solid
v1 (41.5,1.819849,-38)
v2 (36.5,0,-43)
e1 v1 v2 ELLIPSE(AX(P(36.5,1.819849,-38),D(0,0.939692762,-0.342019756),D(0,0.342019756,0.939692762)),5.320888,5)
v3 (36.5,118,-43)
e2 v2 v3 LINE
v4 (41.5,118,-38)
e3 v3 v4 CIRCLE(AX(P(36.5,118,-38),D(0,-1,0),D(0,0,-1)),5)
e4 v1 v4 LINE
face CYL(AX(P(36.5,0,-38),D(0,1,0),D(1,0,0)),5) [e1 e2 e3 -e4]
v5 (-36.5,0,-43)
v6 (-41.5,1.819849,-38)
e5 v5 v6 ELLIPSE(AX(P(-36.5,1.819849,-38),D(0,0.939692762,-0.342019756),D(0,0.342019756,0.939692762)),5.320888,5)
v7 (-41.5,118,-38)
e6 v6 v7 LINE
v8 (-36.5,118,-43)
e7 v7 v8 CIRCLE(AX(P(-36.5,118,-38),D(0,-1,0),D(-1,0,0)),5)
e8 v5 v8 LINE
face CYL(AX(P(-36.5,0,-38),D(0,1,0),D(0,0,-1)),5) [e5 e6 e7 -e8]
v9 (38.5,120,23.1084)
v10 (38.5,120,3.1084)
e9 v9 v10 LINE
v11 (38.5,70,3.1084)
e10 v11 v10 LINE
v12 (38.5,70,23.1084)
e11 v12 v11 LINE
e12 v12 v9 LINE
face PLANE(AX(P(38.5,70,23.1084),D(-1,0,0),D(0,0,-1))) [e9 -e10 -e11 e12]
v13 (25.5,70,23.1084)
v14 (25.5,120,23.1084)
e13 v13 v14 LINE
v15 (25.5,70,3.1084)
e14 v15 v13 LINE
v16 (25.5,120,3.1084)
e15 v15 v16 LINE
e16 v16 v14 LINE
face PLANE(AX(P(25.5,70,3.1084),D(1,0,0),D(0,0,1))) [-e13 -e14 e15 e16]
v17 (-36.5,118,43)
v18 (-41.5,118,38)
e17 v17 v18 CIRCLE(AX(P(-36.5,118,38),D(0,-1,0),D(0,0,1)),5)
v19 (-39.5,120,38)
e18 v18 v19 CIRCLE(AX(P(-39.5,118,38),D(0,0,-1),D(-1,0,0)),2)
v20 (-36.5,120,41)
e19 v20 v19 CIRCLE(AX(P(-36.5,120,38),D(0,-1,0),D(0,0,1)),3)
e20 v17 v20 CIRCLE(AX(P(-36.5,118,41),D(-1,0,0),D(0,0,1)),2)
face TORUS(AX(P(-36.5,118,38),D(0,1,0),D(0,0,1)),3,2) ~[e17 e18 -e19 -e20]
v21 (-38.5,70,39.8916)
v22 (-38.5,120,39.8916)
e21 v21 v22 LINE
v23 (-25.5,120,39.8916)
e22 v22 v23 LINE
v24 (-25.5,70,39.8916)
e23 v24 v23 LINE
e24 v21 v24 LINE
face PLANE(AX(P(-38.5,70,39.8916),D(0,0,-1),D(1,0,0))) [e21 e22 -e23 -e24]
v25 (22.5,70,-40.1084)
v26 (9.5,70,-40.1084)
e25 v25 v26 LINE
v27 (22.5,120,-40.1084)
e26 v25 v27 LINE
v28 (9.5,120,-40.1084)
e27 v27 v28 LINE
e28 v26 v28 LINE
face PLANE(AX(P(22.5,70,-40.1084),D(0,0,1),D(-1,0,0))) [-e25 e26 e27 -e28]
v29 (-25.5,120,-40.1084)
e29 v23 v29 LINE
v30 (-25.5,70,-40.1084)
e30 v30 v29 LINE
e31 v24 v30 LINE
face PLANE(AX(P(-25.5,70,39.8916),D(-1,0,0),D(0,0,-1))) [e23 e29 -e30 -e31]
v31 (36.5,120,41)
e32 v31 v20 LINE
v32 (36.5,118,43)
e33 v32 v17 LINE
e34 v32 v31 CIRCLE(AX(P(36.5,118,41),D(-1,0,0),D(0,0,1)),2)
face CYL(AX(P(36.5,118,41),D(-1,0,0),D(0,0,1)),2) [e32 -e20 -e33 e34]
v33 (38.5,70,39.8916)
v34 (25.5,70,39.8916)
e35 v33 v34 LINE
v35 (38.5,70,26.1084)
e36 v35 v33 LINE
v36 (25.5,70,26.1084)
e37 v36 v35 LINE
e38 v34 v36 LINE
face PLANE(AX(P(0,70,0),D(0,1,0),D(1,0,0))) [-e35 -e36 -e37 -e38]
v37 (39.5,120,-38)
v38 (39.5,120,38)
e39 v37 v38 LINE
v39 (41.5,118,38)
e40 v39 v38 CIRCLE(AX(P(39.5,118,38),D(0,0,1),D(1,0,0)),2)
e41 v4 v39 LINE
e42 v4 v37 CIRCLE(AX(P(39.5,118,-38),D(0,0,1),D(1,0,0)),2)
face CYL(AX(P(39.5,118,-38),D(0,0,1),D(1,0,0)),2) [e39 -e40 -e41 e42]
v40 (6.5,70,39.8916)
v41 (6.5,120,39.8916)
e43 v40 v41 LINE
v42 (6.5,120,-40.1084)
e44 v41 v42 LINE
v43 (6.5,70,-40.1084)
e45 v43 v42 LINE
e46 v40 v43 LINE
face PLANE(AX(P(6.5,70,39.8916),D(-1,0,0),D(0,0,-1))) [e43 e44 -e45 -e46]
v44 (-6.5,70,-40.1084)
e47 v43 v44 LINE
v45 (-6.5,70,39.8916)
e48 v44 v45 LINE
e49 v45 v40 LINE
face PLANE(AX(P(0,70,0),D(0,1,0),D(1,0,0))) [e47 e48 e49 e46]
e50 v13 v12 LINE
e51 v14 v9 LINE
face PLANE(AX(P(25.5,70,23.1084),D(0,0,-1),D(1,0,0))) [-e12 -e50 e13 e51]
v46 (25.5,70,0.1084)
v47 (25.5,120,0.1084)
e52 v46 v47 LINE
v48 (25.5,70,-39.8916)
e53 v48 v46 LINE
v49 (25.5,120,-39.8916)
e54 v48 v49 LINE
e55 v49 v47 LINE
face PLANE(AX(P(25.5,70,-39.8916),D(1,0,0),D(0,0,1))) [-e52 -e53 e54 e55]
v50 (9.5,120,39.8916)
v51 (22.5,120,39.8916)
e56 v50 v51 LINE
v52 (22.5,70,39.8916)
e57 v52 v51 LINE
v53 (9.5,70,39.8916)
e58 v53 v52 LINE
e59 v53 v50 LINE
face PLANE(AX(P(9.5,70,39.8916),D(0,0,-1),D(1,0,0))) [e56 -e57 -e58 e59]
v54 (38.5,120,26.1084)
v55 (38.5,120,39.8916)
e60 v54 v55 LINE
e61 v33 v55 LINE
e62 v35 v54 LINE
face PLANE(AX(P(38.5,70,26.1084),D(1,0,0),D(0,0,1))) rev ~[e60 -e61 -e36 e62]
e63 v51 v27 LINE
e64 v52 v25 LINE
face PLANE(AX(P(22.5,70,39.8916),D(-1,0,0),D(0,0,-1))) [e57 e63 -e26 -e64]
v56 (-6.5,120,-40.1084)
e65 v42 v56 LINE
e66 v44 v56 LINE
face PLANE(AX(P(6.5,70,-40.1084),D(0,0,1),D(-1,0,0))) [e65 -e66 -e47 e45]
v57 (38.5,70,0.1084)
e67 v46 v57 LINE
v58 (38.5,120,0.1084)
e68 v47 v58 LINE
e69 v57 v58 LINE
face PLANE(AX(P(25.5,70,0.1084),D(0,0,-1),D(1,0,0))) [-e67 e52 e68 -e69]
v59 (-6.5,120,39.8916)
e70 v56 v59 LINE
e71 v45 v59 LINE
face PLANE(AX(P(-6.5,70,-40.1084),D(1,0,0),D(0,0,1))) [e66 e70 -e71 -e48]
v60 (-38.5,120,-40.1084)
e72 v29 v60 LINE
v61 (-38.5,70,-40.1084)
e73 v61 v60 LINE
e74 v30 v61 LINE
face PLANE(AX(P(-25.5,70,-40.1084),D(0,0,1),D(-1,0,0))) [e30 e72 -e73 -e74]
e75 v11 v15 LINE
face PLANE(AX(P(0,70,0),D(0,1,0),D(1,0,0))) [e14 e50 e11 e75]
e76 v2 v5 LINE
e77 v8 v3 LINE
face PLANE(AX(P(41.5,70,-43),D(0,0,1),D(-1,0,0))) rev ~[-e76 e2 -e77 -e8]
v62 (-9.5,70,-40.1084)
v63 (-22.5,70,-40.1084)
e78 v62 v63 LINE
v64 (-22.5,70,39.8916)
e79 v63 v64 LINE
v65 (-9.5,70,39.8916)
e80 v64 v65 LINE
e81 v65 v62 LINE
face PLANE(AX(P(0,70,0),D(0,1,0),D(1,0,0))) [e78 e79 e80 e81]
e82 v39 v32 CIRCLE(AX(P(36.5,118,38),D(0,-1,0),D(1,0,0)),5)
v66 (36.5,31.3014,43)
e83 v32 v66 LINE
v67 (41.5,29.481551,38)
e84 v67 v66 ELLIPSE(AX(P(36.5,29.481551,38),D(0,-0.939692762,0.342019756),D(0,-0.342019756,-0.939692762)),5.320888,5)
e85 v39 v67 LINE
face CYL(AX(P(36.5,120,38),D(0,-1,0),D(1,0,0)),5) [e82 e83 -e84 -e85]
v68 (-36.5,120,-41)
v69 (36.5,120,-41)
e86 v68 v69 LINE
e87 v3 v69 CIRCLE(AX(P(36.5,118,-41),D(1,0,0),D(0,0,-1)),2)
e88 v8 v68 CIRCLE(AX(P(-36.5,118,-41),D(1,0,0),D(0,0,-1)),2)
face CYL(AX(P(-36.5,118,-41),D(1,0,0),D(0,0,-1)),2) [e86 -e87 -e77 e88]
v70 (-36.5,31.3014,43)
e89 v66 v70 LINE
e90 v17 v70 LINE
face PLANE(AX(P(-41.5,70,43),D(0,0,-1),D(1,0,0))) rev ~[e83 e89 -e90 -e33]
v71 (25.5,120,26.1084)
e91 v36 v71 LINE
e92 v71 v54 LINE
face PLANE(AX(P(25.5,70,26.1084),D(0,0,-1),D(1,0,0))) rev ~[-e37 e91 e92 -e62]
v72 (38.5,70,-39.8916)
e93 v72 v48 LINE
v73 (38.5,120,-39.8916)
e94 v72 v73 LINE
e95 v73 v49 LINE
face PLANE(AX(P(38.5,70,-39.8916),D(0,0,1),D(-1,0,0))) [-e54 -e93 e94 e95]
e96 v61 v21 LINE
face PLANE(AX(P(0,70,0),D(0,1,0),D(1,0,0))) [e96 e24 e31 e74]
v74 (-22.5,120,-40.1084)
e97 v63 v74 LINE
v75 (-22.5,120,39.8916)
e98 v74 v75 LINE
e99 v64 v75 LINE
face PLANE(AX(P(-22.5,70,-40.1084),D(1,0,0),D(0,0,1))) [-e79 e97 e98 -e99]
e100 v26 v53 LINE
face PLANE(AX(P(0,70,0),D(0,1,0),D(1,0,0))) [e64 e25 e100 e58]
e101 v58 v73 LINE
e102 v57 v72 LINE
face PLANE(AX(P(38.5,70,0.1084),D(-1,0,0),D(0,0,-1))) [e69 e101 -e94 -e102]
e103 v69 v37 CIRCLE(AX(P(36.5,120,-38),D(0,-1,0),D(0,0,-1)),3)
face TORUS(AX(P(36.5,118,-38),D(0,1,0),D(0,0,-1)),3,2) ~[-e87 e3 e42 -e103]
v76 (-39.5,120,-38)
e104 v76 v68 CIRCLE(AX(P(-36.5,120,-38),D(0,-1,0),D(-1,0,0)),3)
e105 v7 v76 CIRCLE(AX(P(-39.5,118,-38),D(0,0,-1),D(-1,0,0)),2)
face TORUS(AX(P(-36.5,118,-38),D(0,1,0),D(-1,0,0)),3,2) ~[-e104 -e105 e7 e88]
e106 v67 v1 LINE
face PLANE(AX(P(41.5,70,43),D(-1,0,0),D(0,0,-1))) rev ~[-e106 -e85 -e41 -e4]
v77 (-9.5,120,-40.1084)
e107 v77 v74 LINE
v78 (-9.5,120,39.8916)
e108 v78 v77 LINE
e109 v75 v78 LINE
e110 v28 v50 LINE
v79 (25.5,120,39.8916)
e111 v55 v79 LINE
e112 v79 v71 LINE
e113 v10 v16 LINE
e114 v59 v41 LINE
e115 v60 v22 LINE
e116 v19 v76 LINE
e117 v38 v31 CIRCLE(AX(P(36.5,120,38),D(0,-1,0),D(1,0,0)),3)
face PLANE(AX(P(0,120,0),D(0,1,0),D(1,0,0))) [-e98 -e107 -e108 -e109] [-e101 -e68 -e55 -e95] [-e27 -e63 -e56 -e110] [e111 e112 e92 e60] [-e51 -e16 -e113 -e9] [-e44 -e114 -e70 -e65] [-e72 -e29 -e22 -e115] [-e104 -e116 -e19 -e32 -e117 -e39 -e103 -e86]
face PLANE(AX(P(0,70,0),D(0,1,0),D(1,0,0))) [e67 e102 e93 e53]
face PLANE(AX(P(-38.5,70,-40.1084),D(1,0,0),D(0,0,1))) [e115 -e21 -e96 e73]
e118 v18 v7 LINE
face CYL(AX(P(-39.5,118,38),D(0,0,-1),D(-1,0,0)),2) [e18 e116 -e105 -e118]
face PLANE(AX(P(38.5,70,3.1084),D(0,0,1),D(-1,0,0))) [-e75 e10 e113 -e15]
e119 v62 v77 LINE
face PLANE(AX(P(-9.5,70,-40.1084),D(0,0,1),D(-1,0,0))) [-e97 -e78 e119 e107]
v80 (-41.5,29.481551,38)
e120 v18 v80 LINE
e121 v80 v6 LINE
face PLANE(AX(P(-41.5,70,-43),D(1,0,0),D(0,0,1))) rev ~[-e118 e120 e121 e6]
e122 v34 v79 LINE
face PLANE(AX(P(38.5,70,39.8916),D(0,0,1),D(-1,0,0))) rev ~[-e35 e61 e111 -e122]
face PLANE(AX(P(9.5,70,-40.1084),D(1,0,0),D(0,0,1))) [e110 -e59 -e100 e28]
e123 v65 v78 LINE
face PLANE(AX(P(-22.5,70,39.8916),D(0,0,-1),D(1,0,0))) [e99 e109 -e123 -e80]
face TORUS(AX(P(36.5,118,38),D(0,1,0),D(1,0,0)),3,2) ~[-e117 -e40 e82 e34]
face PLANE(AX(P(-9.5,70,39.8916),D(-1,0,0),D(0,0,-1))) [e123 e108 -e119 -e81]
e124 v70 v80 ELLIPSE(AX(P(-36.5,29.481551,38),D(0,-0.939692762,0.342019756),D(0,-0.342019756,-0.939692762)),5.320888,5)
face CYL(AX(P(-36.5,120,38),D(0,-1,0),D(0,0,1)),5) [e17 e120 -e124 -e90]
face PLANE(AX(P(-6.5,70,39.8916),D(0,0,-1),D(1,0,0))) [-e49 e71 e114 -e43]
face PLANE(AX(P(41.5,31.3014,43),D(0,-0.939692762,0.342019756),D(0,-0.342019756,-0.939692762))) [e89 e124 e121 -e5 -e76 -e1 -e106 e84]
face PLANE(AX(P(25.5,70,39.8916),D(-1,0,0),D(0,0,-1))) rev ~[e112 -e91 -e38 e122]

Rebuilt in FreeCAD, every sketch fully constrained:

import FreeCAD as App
import Part
import Sketcher
from FreeCAD import Vector
Q = App.Units.Quantity


def edges_at(feature, points):
    """Names of the edges that pass closest to the given points."""
    edges = feature.Shape.Edges
    near = lambda p: min(range(len(edges)), key=lambda i: edges[i].distToShape(Part.Vertex(*p))[0])
    return sorted({f"Edge{near(p) + 1}" for p in points})

doc = App.newDocument("Part")
body = doc.addObject("PartDesign::Body", "Body")

# Sketch on XZ plane
sketch1 = body.newObject("Sketcher::SketchObject", "Sketch")
sketch1.AttachmentSupport = (doc.getObject("XZ_Plane"), [""])
sketch1.MapMode = "FlatFace"
sketch1.addGeometry(Part.LineSegment(Vector(41.5, 43, 0), Vector(41.5, -43, 0)), False)
sketch1.addGeometry(Part.LineSegment(Vector(41.5, -43, 0), Vector(-41.5, -43, 0)), False)
sketch1.addGeometry(Part.LineSegment(Vector(-41.5, -43, 0), Vector(-41.5, 43, 0)), False)
sketch1.addGeometry(Part.LineSegment(Vector(-41.5, 43, 0), Vector(41.5, 43, 0)), False)
sketch1.addConstraint(Sketcher.Constraint("Coincident", 0, 2, 1, 1))
sketch1.addConstraint(Sketcher.Constraint("Coincident", 1, 2, 2, 1))
sketch1.addConstraint(Sketcher.Constraint("Coincident", 2, 2, 3, 1))
sketch1.addConstraint(Sketcher.Constraint("Coincident", 3, 2, 0, 1))
sketch1.addConstraint(Sketcher.Constraint("Vertical", 0))
sketch1.addConstraint(Sketcher.Constraint("Horizontal", 1))
sketch1.addConstraint(Sketcher.Constraint("Vertical", 2))
sketch1.addConstraint(Sketcher.Constraint("Horizontal", 3))
sketch1.addConstraint(Sketcher.Constraint("Symmetric", 0, 2, 2, 2, -1, 1))
sketch1.addConstraint(Sketcher.Constraint("DistanceX", 1, 2, 1, 1, 83.0))
sketch1.addConstraint(Sketcher.Constraint("DistanceY", 0, 2, 0, 1, 86.0))
pad1 = body.newObject("PartDesign::Pad", "Pad")
pad1.Profile = sketch1
pad1.Length = 70
pad1.Reversed = True

# Sketch on XZ plane
sketch2 = body.newObject("Sketcher::SketchObject", "Sketch001")
sketch2.AttachmentSupport = (doc.getObject("XZ_Plane"), [""])
sketch2.MapMode = "FlatFace"
sketch2.AttachmentOffset = App.Placement(Vector(0, 0, -70), App.Rotation())
sketch2.addGeometry(Part.LineSegment(Vector(41.5, 43, 0), Vector(41.5, -43, 0)), False)
sketch2.addGeometry(Part.LineSegment(Vector(41.5, -43, 0), Vector(-41.5, -43, 0)), False)
sketch2.addGeometry(Part.LineSegment(Vector(-41.5, -43, 0), Vector(-41.5, 43, 0)), False)
sketch2.addGeometry(Part.LineSegment(Vector(-41.5, 43, 0), Vector(41.5, 43, 0)), False)
sketch2.addGeometry(Part.LineSegment(Vector(38.5, 26.1084, 0), Vector(38.5, 39.8916, 0)), False)
sketch2.addGeometry(Part.LineSegment(Vector(38.5, 39.8916, 0), Vector(25.5, 39.8916, 0)), False)
sketch2.addGeometry(Part.LineSegment(Vector(25.5, 39.8916, 0), Vector(25.5, 26.1084, 0)), False)
sketch2.addGeometry(Part.LineSegment(Vector(25.5, 26.1084, 0), Vector(38.5, 26.1084, 0)), False)
sketch2.addGeometry(Part.LineSegment(Vector(25.5, 3.1084, 0), Vector(38.5, 3.1084, 0)), False)
sketch2.addGeometry(Part.LineSegment(Vector(38.5, 3.1084, 0), Vector(38.5, 23.1084, 0)), False)
sketch2.addGeometry(Part.LineSegment(Vector(38.5, 23.1084, 0), Vector(25.5, 23.1084, 0)), False)
sketch2.addGeometry(Part.LineSegment(Vector(25.5, 23.1084, 0), Vector(25.5, 3.1084, 0)), False)
sketch2.addGeometry(Part.LineSegment(Vector(-25.5, 39.8916, 0), Vector(-38.5, 39.8916, 0)), False)
sketch2.addGeometry(Part.LineSegment(Vector(-38.5, 39.8916, 0), Vector(-38.5, -40.1084, 0)), False)
sketch2.addGeometry(Part.LineSegment(Vector(-38.5, -40.1084, 0), Vector(-25.5, -40.1084, 0)), False)
sketch2.addGeometry(Part.LineSegment(Vector(-25.5, -40.1084, 0), Vector(-25.5, 39.8916, 0)), False)
sketch2.addGeometry(Part.LineSegment(Vector(-22.5, 39.8916, 0), Vector(-22.5, -40.1084, 0)), False)
sketch2.addGeometry(Part.LineSegment(Vector(-22.5, -40.1084, 0), Vector(-9.5, -40.1084, 0)), False)
sketch2.addGeometry(Part.LineSegment(Vector(-9.5, -40.1084, 0), Vector(-9.5, 39.8916, 0)), False)
sketch2.addGeometry(Part.LineSegment(Vector(-9.5, 39.8916, 0), Vector(-22.5, 39.8916, 0)), False)
sketch2.addGeometry(Part.LineSegment(Vector(-6.5, 39.8916, 0), Vector(-6.5, -40.1084, 0)), False)
sketch2.addGeometry(Part.LineSegment(Vector(-6.5, -40.1084, 0), Vector(6.5, -40.1084, 0)), False)
sketch2.addGeometry(Part.LineSegment(Vector(6.5, -40.1084, 0), Vector(6.5, 39.8916, 0)), False)
sketch2.addGeometry(Part.LineSegment(Vector(6.5, 39.8916, 0), Vector(-6.5, 39.8916, 0)), False)
sketch2.addGeometry(Part.LineSegment(Vector(9.5, 39.8916, 0), Vector(9.5, -40.1084, 0)), False)
sketch2.addGeometry(Part.LineSegment(Vector(9.5, -40.1084, 0), Vector(22.5, -40.1084, 0)), False)
sketch2.addGeometry(Part.LineSegment(Vector(22.5, -40.1084, 0), Vector(22.5, 39.8916, 0)), False)
sketch2.addGeometry(Part.LineSegment(Vector(22.5, 39.8916, 0), Vector(9.5, 39.8916, 0)), False)
sketch2.addGeometry(Part.LineSegment(Vector(25.5, -39.8916, 0), Vector(38.5, -39.8916, 0)), False)
sketch2.addGeometry(Part.LineSegment(Vector(38.5, -39.8916, 0), Vector(38.5, 0.1084, 0)), False)
sketch2.addGeometry(Part.LineSegment(Vector(38.5, 0.1084, 0), Vector(25.5, 0.1084, 0)), False)
sketch2.addGeometry(Part.LineSegment(Vector(25.5, 0.1084, 0), Vector(25.5, -39.8916, 0)), False)
sketch2.addConstraint(Sketcher.Constraint("Coincident", 0, 2, 1, 1))
sketch2.addConstraint(Sketcher.Constraint("Coincident", 1, 2, 2, 1))
sketch2.addConstraint(Sketcher.Constraint("Coincident", 2, 2, 3, 1))
sketch2.addConstraint(Sketcher.Constraint("Coincident", 3, 2, 0, 1))
sketch2.addConstraint(Sketcher.Constraint("Coincident", 4, 2, 5, 1))
sketch2.addConstraint(Sketcher.Constraint("Coincident", 5, 2, 6, 1))
sketch2.addConstraint(Sketcher.Constraint("Coincident", 6, 2, 7, 1))
sketch2.addConstraint(Sketcher.Constraint("Coincident", 7, 2, 4, 1))
sketch2.addConstraint(Sketcher.Constraint("Coincident", 8, 2, 9, 1))
sketch2.addConstraint(Sketcher.Constraint("Coincident", 9, 2, 10, 1))
sketch2.addConstraint(Sketcher.Constraint("Coincident", 10, 2, 11, 1))
sketch2.addConstraint(Sketcher.Constraint("Coincident", 11, 2, 8, 1))
sketch2.addConstraint(Sketcher.Constraint("Coincident", 12, 2, 13, 1))
sketch2.addConstraint(Sketcher.Constraint("Coincident", 13, 2, 14, 1))
sketch2.addConstraint(Sketcher.Constraint("Coincident", 14, 2, 15, 1))
sketch2.addConstraint(Sketcher.Constraint("Coincident", 15, 2, 12, 1))
sketch2.addConstraint(Sketcher.Constraint("Coincident", 16, 2, 17, 1))
sketch2.addConstraint(Sketcher.Constraint("Coincident", 17, 2, 18, 1))
sketch2.addConstraint(Sketcher.Constraint("Coincident", 18, 2, 19, 1))
sketch2.addConstraint(Sketcher.Constraint("Coincident", 19, 2, 16, 1))
sketch2.addConstraint(Sketcher.Constraint("Coincident", 20, 2, 21, 1))
sketch2.addConstraint(Sketcher.Constraint("Coincident", 21, 2, 22, 1))
sketch2.addConstraint(Sketcher.Constraint("Coincident", 22, 2, 23, 1))
sketch2.addConstraint(Sketcher.Constraint("Coincident", 23, 2, 20, 1))
sketch2.addConstraint(Sketcher.Constraint("Coincident", 24, 2, 25, 1))
sketch2.addConstraint(Sketcher.Constraint("Coincident", 25, 2, 26, 1))
sketch2.addConstraint(Sketcher.Constraint("Coincident", 26, 2, 27, 1))
sketch2.addConstraint(Sketcher.Constraint("Coincident", 27, 2, 24, 1))
sketch2.addConstraint(Sketcher.Constraint("Coincident", 28, 2, 29, 1))
sketch2.addConstraint(Sketcher.Constraint("Coincident", 29, 2, 30, 1))
sketch2.addConstraint(Sketcher.Constraint("Coincident", 30, 2, 31, 1))
sketch2.addConstraint(Sketcher.Constraint("Coincident", 31, 2, 28, 1))
sketch2.addConstraint(Sketcher.Constraint("Vertical", 0))
sketch2.addConstraint(Sketcher.Constraint("Horizontal", 1))
sketch2.addConstraint(Sketcher.Constraint("Vertical", 2))
sketch2.addConstraint(Sketcher.Constraint("Horizontal", 3))
sketch2.addConstraint(Sketcher.Constraint("Vertical", 4))
sketch2.addConstraint(Sketcher.Constraint("Horizontal", 5))
sketch2.addConstraint(Sketcher.Constraint("Vertical", 6))
sketch2.addConstraint(Sketcher.Constraint("Horizontal", 7))
sketch2.addConstraint(Sketcher.Constraint("Horizontal", 8))
sketch2.addConstraint(Sketcher.Constraint("Vertical", 9))
sketch2.addConstraint(Sketcher.Constraint("Horizontal", 10))
sketch2.addConstraint(Sketcher.Constraint("Vertical", 11))
sketch2.addConstraint(Sketcher.Constraint("Horizontal", 12))
sketch2.addConstraint(Sketcher.Constraint("Vertical", 13))
sketch2.addConstraint(Sketcher.Constraint("Horizontal", 14))
sketch2.addConstraint(Sketcher.Constraint("Vertical", 15))
sketch2.addConstraint(Sketcher.Constraint("Vertical", 16))
sketch2.addConstraint(Sketcher.Constraint("Horizontal", 17))
sketch2.addConstraint(Sketcher.Constraint("Vertical", 18))
sketch2.addConstraint(Sketcher.Constraint("Horizontal", 19))
sketch2.addConstraint(Sketcher.Constraint("Vertical", 20))
sketch2.addConstraint(Sketcher.Constraint("Horizontal", 21))
sketch2.addConstraint(Sketcher.Constraint("Vertical", 22))
sketch2.addConstraint(Sketcher.Constraint("Horizontal", 23))
sketch2.addConstraint(Sketcher.Constraint("Vertical", 24))
sketch2.addConstraint(Sketcher.Constraint("Horizontal", 25))
sketch2.addConstraint(Sketcher.Constraint("Vertical", 26))
sketch2.addConstraint(Sketcher.Constraint("Horizontal", 27))
sketch2.addConstraint(Sketcher.Constraint("Horizontal", 28))
sketch2.addConstraint(Sketcher.Constraint("Vertical", 29))
sketch2.addConstraint(Sketcher.Constraint("Horizontal", 30))
sketch2.addConstraint(Sketcher.Constraint("Vertical", 31))
sketch2.addConstraint(Sketcher.Constraint("Symmetric", 0, 2, 2, 2, -1, 1))
sketch2.addConstraint(Sketcher.Constraint("Symmetric", 12, 2, 28, 2, -1, 1))
sketch2.addConstraint(Sketcher.Constraint("Symmetric", 4, 2, 12, 2, -2))
sketch2.addConstraint(Sketcher.Constraint("Symmetric", 17, 2, 24, 2, -2))
sketch2.addConstraint(Sketcher.Constraint("Symmetric", 19, 2, 26, 2, -2))
sketch2.addConstraint(Sketcher.Constraint("Horizontal", 14, 2, 16, 2))
sketch2.addConstraint(Sketcher.Constraint("Horizontal", 15, 2, 18, 2))
sketch2.addConstraint(Sketcher.Constraint("Horizontal", 17, 2, 20, 2))
sketch2.addConstraint(Sketcher.Constraint("Horizontal", 19, 2, 22, 2))
sketch2.addConstraint(Sketcher.Constraint("Vertical", 7, 2, 8, 2))
sketch2.addConstraint(Sketcher.Constraint("Vertical", 6, 2, 10, 2))
sketch2.addConstraint(Sketcher.Constraint("Vertical", 11, 2, 30, 2))
sketch2.addConstraint(Sketcher.Constraint("Equal", 10, 12))
sketch2.addConstraint(Sketcher.Constraint("Equal", 14, 17))
sketch2.addConstraint(Sketcher.Constraint("Equal", 19, 21))
sketch2.addConstraint(Sketcher.Constraint("DistanceX", 1, 2, 1, 1, 83.0))
sketch2.addConstraint(Sketcher.Constraint("DistanceX", 5, 2, 5, 1, 13.0))
sketch2.addConstraint(Sketcher.Constraint("DistanceY", 0, 2, 0, 1, 86.0))
sketch2.addConstraint(Sketcher.Constraint("DistanceY", 9, 1, 9, 2, 20.0))
sketch2.addConstraint(Sketcher.Constraint("DistanceY", 13, 2, 13, 1, 80.0))
sketch2.addConstraint(Sketcher.Constraint("DistanceY", 29, 1, 29, 2, 40.0))
sketch2.addConstraint(Sketcher.Constraint("DistanceX", 4, 2, 3, 2, 3.0))
sketch2.addConstraint(Sketcher.Constraint("DistanceY", 9, 2, 7, 2, 3.0))
sketch2.addConstraint(Sketcher.Constraint("DistanceX", 14, 2, 16, 2, 3.0))
sketch2.addConstraint(Sketcher.Constraint("DistanceX", 17, 2, 20, 2, 3.0))
sketch2.addConstraint(Sketcher.Constraint("DistanceY", 29, 2, 8, 2, 3.0))
sketch2.addConstraint(Sketcher.Constraint("DistanceY", 4, 1, 4, 2, 13.7832))
pad2 = body.newObject("PartDesign::Pad", "Pad001")
pad2.Profile = sketch2
pad2.Length = 50
pad2.Reversed = True

# Sketch on YZ plane
sketch3 = body.newObject("Sketcher::SketchObject", "Sketch002")
sketch3.AttachmentSupport = (doc.getObject("YZ_Plane"), [""])
sketch3.MapMode = "FlatFace"
sketch3.AttachmentOffset = App.Placement(Vector(0, 0, 41.5), App.Rotation())
sketch3.addGeometry(Part.LineSegment(Vector(31.3014, 43, 0), Vector(0, 43, 0)), False)
sketch3.addGeometry(Part.LineSegment(Vector(0, 43, 0), Vector(0, -43, 0)), False)
sketch3.addGeometry(Part.LineSegment(Vector(0, -43, 0), Vector(31.3014, 43, 0)), False)
sketch3.addConstraint(Sketcher.Constraint("Coincident", 0, 2, 1, 1))
sketch3.addConstraint(Sketcher.Constraint("Coincident", 1, 2, 2, 1))
sketch3.addConstraint(Sketcher.Constraint("Coincident", 2, 2, 0, 1))
sketch3.addConstraint(Sketcher.Constraint("Horizontal", 0))
sketch3.addConstraint(Sketcher.Constraint("Vertical", 1))
sketch3.addConstraint(Sketcher.Constraint("Symmetric", 0, 2, 1, 2, -1, 1))
sketch3.addConstraint(Sketcher.Constraint("DistanceY", 1, 2, 1, 1, 86.0))
sketch3.addConstraint(Sketcher.Constraint("Angle", 2, Q("70 deg")))
pocket1 = body.newObject("PartDesign::Pocket", "Pocket")
pocket1.Profile = sketch3
pocket1.Length = 83
doc.recompute()

fillet = body.newObject("PartDesign::Fillet", "Fillet")
fillet.Base = (pocket1, edges_at(pocket1, [
    (41.5, 75.651, 43),
    (-41.5, 75.651, 43),
    (41.5, 60, -43),
    (-41.5, 60, -43),
]))
fillet.Radius = 5
doc.recompute()

fillet2 = body.newObject("PartDesign::Fillet", "Fillet001")
fillet2.Base = (fillet, edges_at(fillet, [
    (40.035, 120, 41.535),
    (41.5, 120, 0),
    (40.035, 120, -41.535),
    (0, 120, -43),
    (-40.035, 120, -41.535),
    (-41.5, 120, 0),
    (-40.035, 120, 41.535),
    (0, 120, 43),
]))
fillet2.Radius = 2

doc.recompute()
